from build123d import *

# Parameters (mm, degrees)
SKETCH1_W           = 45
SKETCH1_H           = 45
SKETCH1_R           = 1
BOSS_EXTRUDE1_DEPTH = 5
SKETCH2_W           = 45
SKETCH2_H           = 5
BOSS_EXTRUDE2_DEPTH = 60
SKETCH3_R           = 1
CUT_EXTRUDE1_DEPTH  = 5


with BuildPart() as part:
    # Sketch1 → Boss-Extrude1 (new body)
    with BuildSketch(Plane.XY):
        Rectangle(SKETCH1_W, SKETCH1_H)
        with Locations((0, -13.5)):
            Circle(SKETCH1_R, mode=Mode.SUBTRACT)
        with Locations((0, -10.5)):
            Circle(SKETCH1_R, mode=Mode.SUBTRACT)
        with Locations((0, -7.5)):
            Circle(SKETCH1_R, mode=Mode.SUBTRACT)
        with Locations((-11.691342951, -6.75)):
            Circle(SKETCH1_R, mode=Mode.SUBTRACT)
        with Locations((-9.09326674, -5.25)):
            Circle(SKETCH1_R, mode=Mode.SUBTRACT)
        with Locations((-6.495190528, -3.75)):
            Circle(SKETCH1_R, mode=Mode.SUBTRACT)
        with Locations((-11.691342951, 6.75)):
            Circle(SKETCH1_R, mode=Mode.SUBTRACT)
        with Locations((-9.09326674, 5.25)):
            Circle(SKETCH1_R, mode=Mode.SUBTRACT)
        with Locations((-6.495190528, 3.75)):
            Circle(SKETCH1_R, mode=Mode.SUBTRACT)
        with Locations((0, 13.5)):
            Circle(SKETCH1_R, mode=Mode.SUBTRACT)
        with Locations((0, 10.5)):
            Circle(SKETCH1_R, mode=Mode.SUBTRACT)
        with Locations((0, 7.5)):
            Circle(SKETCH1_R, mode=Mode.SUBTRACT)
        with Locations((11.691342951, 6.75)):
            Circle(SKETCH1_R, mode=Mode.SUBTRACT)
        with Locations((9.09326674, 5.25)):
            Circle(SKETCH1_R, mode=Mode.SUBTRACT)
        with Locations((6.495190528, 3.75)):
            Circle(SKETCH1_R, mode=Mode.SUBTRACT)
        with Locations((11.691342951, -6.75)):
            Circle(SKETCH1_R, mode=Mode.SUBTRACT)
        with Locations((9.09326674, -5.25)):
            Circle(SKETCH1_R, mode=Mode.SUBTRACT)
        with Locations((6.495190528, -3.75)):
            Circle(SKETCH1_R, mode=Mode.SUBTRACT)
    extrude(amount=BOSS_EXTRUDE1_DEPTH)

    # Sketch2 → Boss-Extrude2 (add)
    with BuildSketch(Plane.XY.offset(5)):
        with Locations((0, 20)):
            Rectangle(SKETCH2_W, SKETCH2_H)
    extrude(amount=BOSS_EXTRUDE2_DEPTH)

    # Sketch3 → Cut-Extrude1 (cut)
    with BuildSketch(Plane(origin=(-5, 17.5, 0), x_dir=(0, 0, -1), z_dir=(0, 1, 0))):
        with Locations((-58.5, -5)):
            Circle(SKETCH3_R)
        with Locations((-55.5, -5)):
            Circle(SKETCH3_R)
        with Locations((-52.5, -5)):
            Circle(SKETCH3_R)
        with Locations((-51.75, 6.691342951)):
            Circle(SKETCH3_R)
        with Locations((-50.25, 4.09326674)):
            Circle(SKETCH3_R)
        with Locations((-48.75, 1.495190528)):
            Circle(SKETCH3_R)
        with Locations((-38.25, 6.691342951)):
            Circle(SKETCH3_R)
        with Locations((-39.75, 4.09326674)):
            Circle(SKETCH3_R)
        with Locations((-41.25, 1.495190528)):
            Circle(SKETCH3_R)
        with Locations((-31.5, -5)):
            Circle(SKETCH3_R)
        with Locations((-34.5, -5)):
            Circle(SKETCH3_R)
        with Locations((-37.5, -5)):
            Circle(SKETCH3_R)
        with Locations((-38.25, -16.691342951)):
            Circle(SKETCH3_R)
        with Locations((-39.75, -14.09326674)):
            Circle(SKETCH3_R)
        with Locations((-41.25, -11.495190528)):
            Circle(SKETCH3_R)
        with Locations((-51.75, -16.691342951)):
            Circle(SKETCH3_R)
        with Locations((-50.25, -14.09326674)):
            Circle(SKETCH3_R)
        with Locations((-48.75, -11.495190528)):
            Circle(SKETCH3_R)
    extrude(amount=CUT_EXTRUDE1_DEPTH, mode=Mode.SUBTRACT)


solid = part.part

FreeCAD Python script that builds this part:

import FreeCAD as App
import Part
import Sketcher

V = App.Vector

doc = App.newDocument("Part")
body = doc.addObject("PartDesign::Body", "Body")

# Sketch on XY plane
sketch1 = doc.addObject("Sketcher::SketchObject", "Sketch")
body.addObject(sketch1)
sketch1.AttachmentSupport = (doc.XY_Plane, [""])
sketch1.MapMode = "FlatFace"
sketch1.addGeometry(Part.LineSegment(V(-22.5, 22.5, 0), V(-22.5, -22.5, 0)), False)
sketch1.addGeometry(Part.LineSegment(V(-22.5, -22.5, 0), V(22.5, -22.5, 0)), False)
sketch1.addGeometry(Part.LineSegment(V(22.5, -22.5, 0), V(22.5, 22.5, 0)), False)
sketch1.addGeometry(Part.LineSegment(V(22.5, 22.5, 0), V(-22.5, 22.5, 0)), False)
sketch1.addGeometry(Part.Circle(V(-11.7, -6.8, 0), V(0, 0, 1), 1), False)
sketch1.addGeometry(Part.Circle(V(-9.1, -5.2, 0), V(0, 0, 1), 1), False)
sketch1.addGeometry(Part.Circle(V(-6.5, -3.8, 0), V(0, 0, 1), 1), False)
sketch1.addGeometry(Part.Circle(V(0, -13.5, 0), V(0, 0, 1), 1), False)
sketch1.addGeometry(Part.Circle(V(0, -10.5, 0), V(0, 0, 1), 1), False)
sketch1.addGeometry(Part.Circle(V(0, -7.5, 0), V(0, 0, 1), 1), False)
sketch1.addGeometry(Part.Circle(V(6.5, -3.8, 0), V(0, 0, 1), 1), False)
sketch1.addGeometry(Part.Circle(V(9.1, -5.2, 0), V(0, 0, 1), 1), False)
sketch1.addGeometry(Part.Circle(V(11.7, -6.8, 0), V(0, 0, 1), 1), False)
sketch1.addGeometry(Part.Circle(V(-11.7, 6.8, 0), V(0, 0, 1), 1), False)
sketch1.addGeometry(Part.Circle(V(-9.1, 5.2, 0), V(0, 0, 1), 1), False)
sketch1.addGeometry(Part.Circle(V(-6.5, 3.8, 0), V(0, 0, 1), 1), False)
sketch1.addGeometry(Part.Circle(V(6.5, 3.8, 0), V(0, 0, 1), 1), False)
sketch1.addGeometry(Part.Circle(V(9.1, 5.2, 0), V(0, 0, 1), 1), False)
sketch1.addGeometry(Part.Circle(V(11.7, 6.8, 0), V(0, 0, 1), 1), False)
sketch1.addGeometry(Part.Circle(V(0, 7.5, 0), V(0, 0, 1), 1), False)
sketch1.addGeometry(Part.Circle(V(0, 10.5, 0), V(0, 0, 1), 1), False)
sketch1.addGeometry(Part.Circle(V(0, 13.5, 0), V(0, 0, 1), 1), False)
sketch1.addConstraint(Sketcher.Constraint("Coincident", 0, 2, 1, 1))
sketch1.addConstraint(Sketcher.Constraint("Coincident", 1, 2, 2, 1))
sketch1.addConstraint(Sketcher.Constraint("Coincident", 2, 2, 3, 1))
sketch1.addConstraint(Sketcher.Constraint("Coincident", 3, 2, 0, 1))
sketch1.addConstraint(Sketcher.Constraint("Vertical", 0))
sketch1.addConstraint(Sketcher.Constraint("Horizontal", 1))
sketch1.addConstraint(Sketcher.Constraint("Vertical", 2))
sketch1.addConstraint(Sketcher.Constraint("Horizontal", 3))
sketch1.addConstraint(Sketcher.Constraint("Equal", 4, 5))
sketch1.addConstraint(Sketcher.Constraint("Equal", 5, 6))
sketch1.addConstraint(Sketcher.Constraint("Equal", 6, 7))
sketch1.addConstraint(Sketcher.Constraint("Equal", 7, 8))
sketch1.addConstraint(Sketcher.Constraint("Equal", 8, 9))
sketch1.addConstraint(Sketcher.Constraint("Equal", 9, 10))
sketch1.addConstraint(Sketcher.Constraint("Equal", 10, 11))
sketch1.addConstraint(Sketcher.Constraint("Equal", 11, 12))
sketch1.addConstraint(Sketcher.Constraint("Equal", 12, 13))
sketch1.addConstraint(Sketcher.Constraint("Equal", 13, 14))
sketch1.addConstraint(Sketcher.Constraint("Equal", 14, 15))
sketch1.addConstraint(Sketcher.Constraint("Equal", 15, 16))
sketch1.addConstraint(Sketcher.Constraint("Equal", 16, 17))
sketch1.addConstraint(Sketcher.Constraint("Equal", 17, 18))
sketch1.addConstraint(Sketcher.Constraint("Equal", 18, 19))
sketch1.addConstraint(Sketcher.Constraint("Equal", 19, 20))
sketch1.addConstraint(Sketcher.Constraint("Equal", 20, 21))
sketch1.addConstraint(Sketcher.Constraint("Symmetric", 12, 3, 13, 3, -1, 1))
sketch1.addConstraint(Sketcher.Constraint("Symmetric", 11, 3, 14, 3, -1, 1))
sketch1.addConstraint(Sketcher.Constraint("Symmetric", 10, 3, 15, 3, -1, 1))
sketch1.addConstraint(Sketcher.Constraint("Symmetric", 6, 3, 16, 3, -1, 1))
sketch1.addConstraint(Sketcher.Constraint("Symmetric", 5, 3, 17, 3, -1, 1))
sketch1.addConstraint(Sketcher.Constraint("Symmetric", 4, 3, 18, 3, -1, 1))
sketch1.addConstraint(Sketcher.Constraint("Symmetric", 9, 3, 19, 3, -1, 1))
sketch1.addConstraint(Sketcher.Constraint("Symmetric", 8, 3, 20, 3, -1, 1))
sketch1.addConstraint(Sketcher.Constraint("Symmetric", 7, 3, 21, 3, -1, 1))
sketch1.addConstraint(Sketcher.Constraint("Symmetric", 0, 2, 2, 2, -1, 1))
sketch1.addConstraint(Sketcher.Constraint("Symmetric", 6, 3, 10, 3, -2))
sketch1.addConstraint(Sketcher.Constraint("Symmetric", 5, 3, 11, 3, -2))
sketch1.addConstraint(Sketcher.Constraint("Symmetric", 4, 3, 12, 3, -2))
sketch1.addConstraint(Sketcher.Constraint("PointOnObject", 7, 3, -2))
sketch1.addConstraint(Sketcher.Constraint("PointOnObject", 8, 3, -2))
sketch1.addConstraint(Sketcher.Constraint("PointOnObject", 9, 3, -2))
sketch1.addConstraint(Sketcher.Constraint("Equal", 3, 0))
sketch1.addConstraint(Sketcher.Constraint("Diameter", 4, 2.0))
sketch1.addConstraint(Sketcher.Constraint("DistanceX", 1, 1, 1, 2, 45.0))
sketch1.addConstraint(Sketcher.Constraint("DistanceY", 4, 3, 6, 3, 3.0))
sketch1.addConstraint(Sketcher.Constraint("DistanceY", 7, 3, 8, 3, 3.0))
sketch1.addConstraint(Sketcher.Constraint("DistanceY", 8, 3, 9, 3, 3.0))
sketch1.addConstraint(Sketcher.Constraint("DistanceY", 5, 3, 13, 3, 12.0))
sketch1.addConstraint(Sketcher.Constraint("DistanceY", 0, 2, 7, 3, 9.0))
sketch1.addConstraint(Sketcher.Constraint("DistanceY", 4, 3, 5, 3, 1.5))
sketch1.addConstraint(Sketcher.Constraint("DistanceX", 6, 3, -1, 1, 6.495191))
sketch1.addConstraint(Sketcher.Constraint("DistanceX", 4, 3, -1, 1, 11.691343))
sketch1.addConstraint(Sketcher.Constraint("DistanceX", 5, 3, -1, 1, 9.093267))
pad1 = doc.addObject("PartDesign::Pad", "Pad")
body.addObject(pad1)
pad1.Profile = sketch1
pad1.Length = 5

# Sketch on XY plane
sketch2 = doc.addObject("Sketcher::SketchObject", "Sketch001")
body.addObject(sketch2)
sketch2.AttachmentSupport = (doc.XY_Plane, [""])
sketch2.MapMode = "FlatFace"
sketch2.AttachmentOffset = App.Placement(V(0, 0, 5), App.Rotation())
sketch2.addGeometry(Part.LineSegment(V(-22, 22, 0), V(-22, 18, 0)), False)
sketch2.addGeometry(Part.LineSegment(V(-22, 18, 0), V(22, 18, 0)), False)
sketch2.addGeometry(Part.LineSegment(V(22, 18, 0), V(22, 22, 0)), False)
sketch2.addGeometry(Part.LineSegment(V(22, 22, 0), V(-22, 22, 0)), False)
sketch2.addConstraint(Sketcher.Constraint("Coincident", 0, 2, 1, 1))
sketch2.addConstraint(Sketcher.Constraint("Coincident", 1, 2, 2, 1))
sketch2.addConstraint(Sketcher.Constraint("Coincident", 2, 2, 3, 1))
sketch2.addConstraint(Sketcher.Constraint("Coincident", 3, 2, 0, 1))
sketch2.addConstraint(Sketcher.Constraint("Vertical", 0))
sketch2.addConstraint(Sketcher.Constraint("Horizontal", 1))
sketch2.addConstraint(Sketcher.Constraint("Vertical", 2))
sketch2.addConstraint(Sketcher.Constraint("Horizontal", 3))
sketch2.addConstraint(Sketcher.Constraint("DistanceX", 1, 1, 1, 2, 45.0))
sketch2.addConstraint(Sketcher.Constraint("DistanceY", 0, 2, 0, 1, 5.0))
sketch2.addConstraint(Sketcher.Constraint("DistanceX", 0, 2, -1, 1, 22.5))
sketch2.addConstraint(Sketcher.Constraint("DistanceY", -1, 1, 0, 2, 17.5))
pad2 = doc.addObject("PartDesign::Pad", "Pad001")
body.addObject(pad2)
pad2.Profile = sketch2
pad2.Length = 60

# Sketch on XZ plane
sketch3 = doc.addObject("Sketcher::SketchObject", "Sketch002")
body.addObject(sketch3)
sketch3.AttachmentSupport = (doc.XZ_Plane, [""])
sketch3.MapMode = "FlatFace"
sketch3.AttachmentOffset = App.Placement(V(0, 0, -17.5), App.Rotation())
sketch3.addGeometry(Part.Circle(V(0, 58.5, 0), V(0, 0, 1), 1), False)
sketch3.addGeometry(Part.Circle(V(0, 55.5, 0), V(0, 0, 1), 1), False)
sketch3.addGeometry(Part.Circle(V(0, 52.5, 0), V(0, 0, 1), 1), False)
sketch3.addGeometry(Part.Circle(V(-11.7, 51.8, 0), V(0, 0, 1), 1), False)
sketch3.addGeometry(Part.Circle(V(-9.1, 50.2, 0), V(0, 0, 1), 1), False)
sketch3.addGeometry(Part.Circle(V(-6.5, 48.8, 0), V(0, 0, 1), 1), False)
sketch3.addGeometry(Part.Circle(V(-11.7, 38.2, 0), V(0, 0, 1), 1), False)
sketch3.addGeometry(Part.Circle(V(-9.1, 39.8, 0), V(0, 0, 1), 1), False)
sketch3.addGeometry(Part.Circle(V(-6.5, 41.2, 0), V(0, 0, 1), 1), False)
sketch3.addGeometry(Part.Circle(V(0, 31.5, 0), V(0, 0, 1), 1), False)
sketch3.addGeometry(Part.Circle(V(0, 34.5, 0), V(0, 0, 1), 1), False)
sketch3.addGeometry(Part.Circle(V(0, 37.5, 0), V(0, 0, 1), 1), False)
sketch3.addGeometry(Part.Circle(V(11.7, 38.2, 0), V(0, 0, 1), 1), False)
sketch3.addGeometry(Part.Circle(V(9.1, 39.8, 0), V(0, 0, 1), 1), False)
sketch3.addGeometry(Part.Circle(V(6.5, 41.2, 0), V(0, 0, 1), 1), False)
sketch3.addGeometry(Part.Circle(V(11.7, 51.8, 0), V(0, 0, 1), 1), False)
sketch3.addGeometry(Part.Circle(V(9.1, 50.2, 0), V(0, 0, 1), 1), False)
sketch3.addGeometry(Part.Circle(V(6.5, 48.8, 0), V(0, 0, 1), 1), False)
sketch3.addConstraint(Sketcher.Constraint("Equal", 0, 1))
sketch3.addConstraint(Sketcher.Constraint("Equal", 1, 2))
sketch3.addConstraint(Sketcher.Constraint("Equal", 2, 3))
sketch3.addConstraint(Sketcher.Constraint("Equal", 3, 4))
sketch3.addConstraint(Sketcher.Constraint("Equal", 4, 5))
sketch3.addConstraint(Sketcher.Constraint("Equal", 5, 6))
sketch3.addConstraint(Sketcher.Constraint("Equal", 6, 7))
sketch3.addConstraint(Sketcher.Constraint("Equal", 7, 8))
sketch3.addConstraint(Sketcher.Constraint("Equal", 8, 9))
sketch3.addConstraint(Sketcher.Constraint("Equal", 9, 10))
sketch3.addConstraint(Sketcher.Constraint("Equal", 10, 11))
sketch3.addConstraint(Sketcher.Constraint("Equal", 11, 12))
sketch3.addConstraint(Sketcher.Constraint("Equal", 12, 13))
sketch3.addConstraint(Sketcher.Constraint("Equal", 13, 14))
sketch3.addConstraint(Sketcher.Constraint("Equal", 14, 15))
sketch3.addConstraint(Sketcher.Constraint("Equal", 15, 16))
sketch3.addConstraint(Sketcher.Constraint("Equal", 16, 17))
sketch3.addConstraint(Sketcher.Constraint("Symmetric", 6, 3, 12, 3, -2))
sketch3.addConstraint(Sketcher.Constraint("Symmetric", 7, 3, 13, 3, -2))
sketch3.addConstraint(Sketcher.Constraint("Symmetric", 8, 3, 14, 3, -2))
sketch3.addConstraint(Sketcher.Constraint("Symmetric", 3, 3, 15, 3, -2))
sketch3.addConstraint(Sketcher.Constraint("Symmetric", 4, 3, 16, 3, -2))
sketch3.addConstraint(Sketcher.Constraint("Symmetric", 5, 3, 17, 3, -2))
sketch3.addConstraint(Sketcher.Constraint("PointOnObject", 0, 3, -2))
sketch3.addConstraint(Sketcher.Constraint("PointOnObject", 1, 3, -2))
sketch3.addConstraint(Sketcher.Constraint("PointOnObject", 2, 3, -2))
sketch3.addConstraint(Sketcher.Constraint("PointOnObject", 9, 3, -2))
sketch3.addConstraint(Sketcher.Constraint("PointOnObject", 10, 3, -2))
sketch3.addConstraint(Sketcher.Constraint("PointOnObject", 11, 3, -2))
sketch3.addConstraint(Sketcher.Constraint("Vertical", 3, 3, 6, 3))
sketch3.addConstraint(Sketcher.Constraint("Vertical", 4, 3, 7, 3))
sketch3.addConstraint(Sketcher.Constraint("Vertical", 5, 3, 8, 3))
sketch3.addConstraint(Sketcher.Constraint("Diameter", 0, 2.0))
sketch3.addConstraint(Sketcher.Constraint("DistanceY", 1, 3, 0, 3, 3.0))
sketch3.addConstraint(Sketcher.Constraint("DistanceY", 2, 3, 1, 3, 3.0))
sketch3.addConstraint(Sketcher.Constraint("DistanceY", 5, 3, 3, 3, 3.0))
sketch3.addConstraint(Sketcher.Constraint("DistanceY", 6, 3, 4, 3, 12.0))
sketch3.addConstraint(Sketcher.Constraint("DistanceY", 7, 3, 5, 3, 9.0))
sketch3.addConstraint(Sketcher.Constraint("DistanceY", 6, 3, 8, 3, 3.0))
sketch3.addConstraint(Sketcher.Constraint("DistanceY", 9, 3, 10, 3, 3.0))
sketch3.addConstraint(Sketcher.Constraint("DistanceY", 10, 3, 11, 3, 3.0))
sketch3.addConstraint(Sketcher.Constraint("DistanceY", -1, 1, 0, 3, 58.5))
sketch3.addConstraint(Sketcher.Constraint("DistanceY", -1, 1, 9, 3, 31.5))
sketch3.addConstraint(Sketcher.Constraint("DistanceY", 4, 3, 3, 3, 1.5))
sketch3.addConstraint(Sketcher.Constraint("DistanceY", -1, 1, 3, 3, 51.75))
sketch3.addConstraint(Sketcher.Constraint("DistanceX", 5, 3, -1, 1, 6.495191))
sketch3.addConstraint(Sketcher.Constraint("DistanceX", 3, 3, -1, 1, 11.691343))
sketch3.addConstraint(Sketcher.Constraint("DistanceX", 4, 3, -1, 1, 9.093267))
pocket1 = doc.addObject("PartDesign::Pocket", "Pocket")
body.addObject(pocket1)
pocket1.Profile = sketch3
pocket1.Length = 5

doc.recompute()
